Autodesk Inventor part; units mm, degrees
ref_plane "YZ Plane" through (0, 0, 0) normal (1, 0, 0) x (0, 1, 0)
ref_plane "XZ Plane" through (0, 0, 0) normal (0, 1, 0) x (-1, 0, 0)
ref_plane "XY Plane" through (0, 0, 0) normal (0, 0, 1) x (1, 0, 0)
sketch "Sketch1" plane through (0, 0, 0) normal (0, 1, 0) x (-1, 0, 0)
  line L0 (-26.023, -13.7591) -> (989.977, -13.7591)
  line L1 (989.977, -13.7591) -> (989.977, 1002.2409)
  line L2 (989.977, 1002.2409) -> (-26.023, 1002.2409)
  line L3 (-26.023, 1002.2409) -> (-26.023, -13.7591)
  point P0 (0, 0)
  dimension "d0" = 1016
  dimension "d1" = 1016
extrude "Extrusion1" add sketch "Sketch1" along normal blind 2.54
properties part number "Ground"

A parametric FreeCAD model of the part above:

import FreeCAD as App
import Part
import Sketcher
from FreeCAD import Vector
Q = App.Units.Quantity


def add_polygon(sketch, points):
    """Adds a closed chain of lines whose ends are joined by coincident constraints."""
    first, n = sketch.GeometryCount, len(points)
    for a, b in zip(points, points[1:] + points[:1]):
        sketch.addGeometry(Part.LineSegment(App.Vector(*a, 0), App.Vector(*b, 0)), False)
    for i in range(n):
        sketch.addConstraint(Sketcher.Constraint("Coincident", first + i, 2, first + (i + 1) % n, 1))

doc = App.newDocument("Part")
body = doc.addObject("PartDesign::Body", "Body")

sketch1 = body.newObject("Sketcher::SketchObject", "Sketch")
sketch1.AttachmentSupport = (doc.getObject("XZ_Plane"), [""])
sketch1.MapMode = "FlatFace"
add_polygon(sketch1, [(26, 1002), (26, -14), (-990, -14), (-990, 1002)])
sketch1.addConstraint([
    Sketcher.Constraint("Vertical", 0),
    Sketcher.Constraint("Horizontal", 1),
    Sketcher.Constraint("Vertical", 2),
    Sketcher.Constraint("Horizontal", 3),
    Sketcher.Constraint("Equal", 3, 0),
    Sketcher.Constraint("DistanceX", 1, 2, 1, 1, Q("40 in")),
    Sketcher.Constraint("DistanceY", 0, 2, -1, 1, Q("0.5417 in")),
    Sketcher.Constraint("DistanceX", -1, 1, 0, 2, 26.023),
])
pad1 = body.newObject("PartDesign::Pad", "Pad")
pad1.Profile = sketch1
pad1.Length = Q("0.1 in")
pad1.Reversed = True

doc.recompute()
